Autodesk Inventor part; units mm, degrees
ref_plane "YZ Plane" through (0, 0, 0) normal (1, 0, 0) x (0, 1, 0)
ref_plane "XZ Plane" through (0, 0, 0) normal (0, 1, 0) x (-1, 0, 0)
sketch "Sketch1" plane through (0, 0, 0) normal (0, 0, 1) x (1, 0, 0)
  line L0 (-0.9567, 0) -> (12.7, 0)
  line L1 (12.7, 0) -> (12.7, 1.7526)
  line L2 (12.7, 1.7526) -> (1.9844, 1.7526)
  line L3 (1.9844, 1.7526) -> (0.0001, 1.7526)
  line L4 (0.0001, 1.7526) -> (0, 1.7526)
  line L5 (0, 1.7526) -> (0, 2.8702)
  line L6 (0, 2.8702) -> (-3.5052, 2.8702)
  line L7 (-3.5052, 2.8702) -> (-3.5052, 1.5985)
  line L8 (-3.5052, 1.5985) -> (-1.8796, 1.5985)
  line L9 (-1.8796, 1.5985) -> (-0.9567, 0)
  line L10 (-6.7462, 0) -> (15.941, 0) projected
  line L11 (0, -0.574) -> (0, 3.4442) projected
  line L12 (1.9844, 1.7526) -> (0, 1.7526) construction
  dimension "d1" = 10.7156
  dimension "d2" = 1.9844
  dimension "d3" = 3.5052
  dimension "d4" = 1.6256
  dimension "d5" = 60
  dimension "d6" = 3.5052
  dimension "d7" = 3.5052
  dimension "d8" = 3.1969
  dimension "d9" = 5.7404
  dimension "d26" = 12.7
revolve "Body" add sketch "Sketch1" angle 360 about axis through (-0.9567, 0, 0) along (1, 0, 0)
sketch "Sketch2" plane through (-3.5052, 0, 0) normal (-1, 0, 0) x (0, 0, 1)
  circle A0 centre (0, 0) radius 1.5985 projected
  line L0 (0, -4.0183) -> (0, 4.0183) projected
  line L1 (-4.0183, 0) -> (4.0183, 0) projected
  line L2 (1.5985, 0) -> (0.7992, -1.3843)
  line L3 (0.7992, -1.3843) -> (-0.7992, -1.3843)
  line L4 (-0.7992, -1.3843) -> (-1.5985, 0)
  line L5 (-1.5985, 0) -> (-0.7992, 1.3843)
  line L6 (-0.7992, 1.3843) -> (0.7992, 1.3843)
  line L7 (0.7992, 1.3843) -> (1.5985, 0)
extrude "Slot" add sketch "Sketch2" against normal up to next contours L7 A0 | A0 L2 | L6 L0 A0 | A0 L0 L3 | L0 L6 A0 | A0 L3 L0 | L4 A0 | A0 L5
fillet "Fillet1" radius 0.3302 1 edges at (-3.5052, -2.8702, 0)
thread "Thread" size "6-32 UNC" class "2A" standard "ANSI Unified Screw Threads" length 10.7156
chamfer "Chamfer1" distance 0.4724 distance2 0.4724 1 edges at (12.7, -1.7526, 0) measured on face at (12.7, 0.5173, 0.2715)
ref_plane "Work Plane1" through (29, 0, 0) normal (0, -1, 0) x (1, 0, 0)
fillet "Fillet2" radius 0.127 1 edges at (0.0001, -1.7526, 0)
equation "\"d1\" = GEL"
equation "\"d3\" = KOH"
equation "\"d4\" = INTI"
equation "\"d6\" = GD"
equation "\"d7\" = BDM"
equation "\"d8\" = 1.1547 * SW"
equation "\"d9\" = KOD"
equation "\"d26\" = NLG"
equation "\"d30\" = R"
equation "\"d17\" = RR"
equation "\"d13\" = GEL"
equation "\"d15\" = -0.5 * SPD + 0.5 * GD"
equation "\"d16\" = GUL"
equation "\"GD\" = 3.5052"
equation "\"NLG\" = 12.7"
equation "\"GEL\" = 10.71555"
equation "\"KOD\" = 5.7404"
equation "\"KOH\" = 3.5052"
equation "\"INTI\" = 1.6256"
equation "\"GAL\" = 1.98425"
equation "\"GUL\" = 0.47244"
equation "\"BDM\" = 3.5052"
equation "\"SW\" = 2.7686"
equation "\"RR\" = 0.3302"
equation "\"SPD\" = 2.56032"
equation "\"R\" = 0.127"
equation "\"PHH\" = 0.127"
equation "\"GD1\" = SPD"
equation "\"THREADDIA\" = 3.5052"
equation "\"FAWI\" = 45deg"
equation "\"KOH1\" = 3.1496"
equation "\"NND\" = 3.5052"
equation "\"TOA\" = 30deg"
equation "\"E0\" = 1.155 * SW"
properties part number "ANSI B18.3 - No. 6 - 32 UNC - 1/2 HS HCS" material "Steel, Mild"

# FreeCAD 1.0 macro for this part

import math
import FreeCAD as App
import Part
import Sketcher
from FreeCAD import Vector
Q = App.Units.Quantity


def edges_at(feature, points):
    """Names of the edges that pass closest to the given points."""
    edges = feature.Shape.Edges
    near = lambda p: min(range(len(edges)), key=lambda i: edges[i].distToShape(Part.Vertex(*p))[0])
    return sorted({f"Edge{near(p) + 1}" for p in points})


def add_polygon(sketch, points):
    """Adds a closed chain of lines whose ends are joined by coincident constraints."""
    first, n = sketch.GeometryCount, len(points)
    for a, b in zip(points, points[1:] + points[:1]):
        sketch.addGeometry(Part.LineSegment(App.Vector(*a, 0), App.Vector(*b, 0)), False)
    for i in range(n):
        sketch.addConstraint(Sketcher.Constraint("Coincident", first + i, 2, first + (i + 1) % n, 1))

doc = App.newDocument("Part")
body = doc.addObject("PartDesign::Body", "Body")

# Sketch on XY plane
sketch1 = doc.addObject("Sketcher::SketchObject", "Sketch")
body.addObject(sketch1)
sketch1.AttachmentSupport = (doc.XY_Plane, [""])
sketch1.MapMode = "FlatFace"
add_polygon(sketch1, [(-1.8796, 1.5985), (-0.9567, 0), (12.7, 0), (12.7, 1.7526), (0.0001, 1.7526), (0, 2.8702), (-3.5052, 2.8702), (-3.5052, 1.5985)])  # lines 0-7
sketch1.addConstraint(Sketcher.Constraint("Horizontal", 1))
sketch1.addConstraint(Sketcher.Constraint("Vertical", 2))
sketch1.addConstraint(Sketcher.Constraint("Horizontal", 3))
sketch1.addConstraint(Sketcher.Constraint("Vertical", 4))
sketch1.addConstraint(Sketcher.Constraint("Horizontal", 5))
sketch1.addConstraint(Sketcher.Constraint("Vertical", 6))
sketch1.addConstraint(Sketcher.Constraint("Horizontal", 7))
sketch1.addConstraint(Sketcher.Constraint("PointOnObject", 0, 2, -1))
sketch1.addConstraint(Sketcher.Constraint("PointOnObject", 3, 2, -2))
sketch1.addConstraint(Sketcher.Constraint("DistanceX", 3, 2, 3, 1, Q("0.5 in")))
sketch1.addConstraint(Sketcher.Constraint("Angle", 0, Q("-59.9998 deg")))
sketch1.addConstraint(Sketcher.Constraint("DistanceX", 5, 2, 5, 1, Q("0.138 in")))
sketch1.addConstraint(Sketcher.Constraint("DistanceX", 7, 1, 7, 2, Q("0.064 in")))
sketch1.addConstraint(Sketcher.Constraint("DistanceY", 2, 1, 2, 2, Q("0.069 in")))
sketch1.addConstraint(Sketcher.Constraint("DistanceY", 4, 1, 4, 2, Q("0.044 in")))
sketch1.addConstraint(Sketcher.Constraint("DistanceX", 1, 1, 1, 2, 13.6567))
revolution = doc.addObject("PartDesign::Revolution", "Revolution")
body.addObject(revolution)
revolution.Profile = sketch1
revolution.ReferenceAxis = (sketch1, ["H_Axis"])
revolution.Angle = 360

# Sketch on YZ plane
sketch2 = doc.addObject("Sketcher::SketchObject", "Sketch001")
body.addObject(sketch2)
sketch2.AttachmentSupport = (doc.YZ_Plane, [""])
sketch2.MapMode = "FlatFace"
sketch2.AttachmentOffset = App.Placement(Vector(0, 0, -0.138 * 25.4), App.Rotation())
sketch2.addGeometry(Part.LineSegment(Vector(1.3843, 0.7992, 0), Vector(0, 1.5985, 0)), False)
sketch2.addGeometry(Part.ArcOfCircle(Part.Circle(Vector(0, 0, 0), Vector(0, 0, 1), 1.5985), math.radians(29.999194), math.radians(90)), False)
sketch2.addGeometry(Part.ArcOfCircle(Part.Circle(Vector(0, 0, 0), Vector(0, 0, 1), 1.5985), math.radians(90), math.radians(150.000806)), False)
sketch2.addGeometry(Part.LineSegment(Vector(0, 1.5985, 0), Vector(-1.3843, 0.7992, 0)), False)
sketch2.addGeometry(Part.ArcOfCircle(Part.Circle(Vector(0, 0, 0), Vector(0, 0, 1), 1.5985), math.radians(-29.999194), math.radians(29.999194)), False)
sketch2.addGeometry(Part.LineSegment(Vector(1.3843, 0.7992, 0), Vector(1.3843, -0.7992, 0)), False)
sketch2.addGeometry(Part.LineSegment(Vector(-1.3843, 0.7992, 0), Vector(-1.3843, -0.7992, 0)), False)
sketch2.addGeometry(Part.ArcOfCircle(Part.Circle(Vector(0, 0, 0), Vector(0, 0, 1), 1.5985), math.radians(150.000806), math.radians(209.999194)), False)
sketch2.addGeometry(Part.LineSegment(Vector(-1.3843, -0.7992, 0), Vector(0, -1.5985, 0)), False)
sketch2.addGeometry(Part.ArcOfCircle(Part.Circle(Vector(0, 0, 0), Vector(0, 0, 1), 1.5985), math.radians(-150.000806), math.radians(-90)), False)
sketch2.addGeometry(Part.ArcOfCircle(Part.Circle(Vector(0, 0, 0), Vector(0, 0, 1), 1.5985), math.radians(-90), math.radians(-29.999194)), False)
sketch2.addGeometry(Part.LineSegment(Vector(0, -1.5985, 0), Vector(1.3843, -0.7992, 0)), False)
sketch2.addConstraint(Sketcher.Constraint("Coincident", 0, 1, 1, 1))
sketch2.addConstraint(Sketcher.Constraint("Coincident", 1, 2, 0, 2))
sketch2.addConstraint(Sketcher.Constraint("Coincident", 2, 1, 3, 1))
sketch2.addConstraint(Sketcher.Constraint("Coincident", 3, 2, 2, 2))
sketch2.addConstraint(Sketcher.Constraint("Coincident", 4, 1, 5, 2))
sketch2.addConstraint(Sketcher.Constraint("Coincident", 5, 1, 4, 2))
sketch2.addConstraint(Sketcher.Constraint("Coincident", 6, 1, 7, 1))
sketch2.addConstraint(Sketcher.Constraint("Coincident", 7, 2, 6, 2))
sketch2.addConstraint(Sketcher.Constraint("Coincident", 8, 1, 9, 1))
sketch2.addConstraint(Sketcher.Constraint("Coincident", 9, 2, 8, 2))
sketch2.addConstraint(Sketcher.Constraint("Coincident", 10, 1, 11, 1))
sketch2.addConstraint(Sketcher.Constraint("Coincident", 11, 2, 10, 2))
sketch2.addConstraint(Sketcher.Constraint("Vertical", 5))
sketch2.addConstraint(Sketcher.Constraint("Vertical", 6))
sketch2.addConstraint(Sketcher.Constraint("Coincident", 1, 3, -1, 1))
sketch2.addConstraint(Sketcher.Constraint("Coincident", 2, 3, -1, 1))
sketch2.addConstraint(Sketcher.Constraint("Coincident", 4, 3, -1, 1))
sketch2.addConstraint(Sketcher.Constraint("Coincident", 7, 3, -1, 1))
sketch2.addConstraint(Sketcher.Constraint("Coincident", 9, 3, -1, 1))
sketch2.addConstraint(Sketcher.Constraint("Coincident", 10, 3, -1, 1))
sketch2.addConstraint(Sketcher.Constraint("Coincident", 2, 1, 1, 2))
sketch2.addConstraint(Sketcher.Constraint("Coincident", 5, 1, 0, 1))
sketch2.addConstraint(Sketcher.Constraint("Coincident", 6, 1, 3, 2))
sketch2.addConstraint(Sketcher.Constraint("Coincident", 8, 1, 7, 2))
sketch2.addConstraint(Sketcher.Constraint("Coincident", 10, 1, 9, 2))
sketch2.addConstraint(Sketcher.Constraint("PointOnObject", 1, 2, -2))
sketch2.addConstraint(Sketcher.Constraint("PointOnObject", 9, 2, -2))
sketch2.addConstraint(Sketcher.Constraint("Parallel", 0, 8))
sketch2.addConstraint(Sketcher.Constraint("Parallel", 3, 11))
sketch2.addConstraint(Sketcher.Constraint("Radius", 1, 1.5985))
sketch2.addConstraint(Sketcher.Constraint("DistanceY", 5, 2, 5, 1, 1.5984))
pad1 = doc.addObject("PartDesign::Pad", "Pad")
body.addObject(pad1)
pad1.Profile = sketch2
pad1.Length = 1.7493
doc.recompute()

fillet = doc.addObject("PartDesign::Fillet", "Fillet")
body.addObject(fillet)
fillet.Base = (pad1, edges_at(pad1, [(-3.505, -2.87, 0)]))
fillet.Radius = Q("0.013 in")
doc.recompute()

chamfer = doc.addObject("PartDesign::Chamfer", "Chamfer")
body.addObject(chamfer)
chamfer.Base = (fillet, edges_at(fillet, [(12.7, -1.753, 0)]))
chamfer.ChamferType = "Two distances"
chamfer.Size = Q("0.0185984 in")
chamfer.Size2 = Q("0.0185984 in")
doc.recompute()

fillet2 = doc.addObject("PartDesign::Fillet", "Fillet001")
body.addObject(fillet2)
fillet2.Base = (chamfer, edges_at(chamfer, [(0, -1.753, 0)]))
fillet2.Radius = Q("0.005 in")

doc.recompute()
